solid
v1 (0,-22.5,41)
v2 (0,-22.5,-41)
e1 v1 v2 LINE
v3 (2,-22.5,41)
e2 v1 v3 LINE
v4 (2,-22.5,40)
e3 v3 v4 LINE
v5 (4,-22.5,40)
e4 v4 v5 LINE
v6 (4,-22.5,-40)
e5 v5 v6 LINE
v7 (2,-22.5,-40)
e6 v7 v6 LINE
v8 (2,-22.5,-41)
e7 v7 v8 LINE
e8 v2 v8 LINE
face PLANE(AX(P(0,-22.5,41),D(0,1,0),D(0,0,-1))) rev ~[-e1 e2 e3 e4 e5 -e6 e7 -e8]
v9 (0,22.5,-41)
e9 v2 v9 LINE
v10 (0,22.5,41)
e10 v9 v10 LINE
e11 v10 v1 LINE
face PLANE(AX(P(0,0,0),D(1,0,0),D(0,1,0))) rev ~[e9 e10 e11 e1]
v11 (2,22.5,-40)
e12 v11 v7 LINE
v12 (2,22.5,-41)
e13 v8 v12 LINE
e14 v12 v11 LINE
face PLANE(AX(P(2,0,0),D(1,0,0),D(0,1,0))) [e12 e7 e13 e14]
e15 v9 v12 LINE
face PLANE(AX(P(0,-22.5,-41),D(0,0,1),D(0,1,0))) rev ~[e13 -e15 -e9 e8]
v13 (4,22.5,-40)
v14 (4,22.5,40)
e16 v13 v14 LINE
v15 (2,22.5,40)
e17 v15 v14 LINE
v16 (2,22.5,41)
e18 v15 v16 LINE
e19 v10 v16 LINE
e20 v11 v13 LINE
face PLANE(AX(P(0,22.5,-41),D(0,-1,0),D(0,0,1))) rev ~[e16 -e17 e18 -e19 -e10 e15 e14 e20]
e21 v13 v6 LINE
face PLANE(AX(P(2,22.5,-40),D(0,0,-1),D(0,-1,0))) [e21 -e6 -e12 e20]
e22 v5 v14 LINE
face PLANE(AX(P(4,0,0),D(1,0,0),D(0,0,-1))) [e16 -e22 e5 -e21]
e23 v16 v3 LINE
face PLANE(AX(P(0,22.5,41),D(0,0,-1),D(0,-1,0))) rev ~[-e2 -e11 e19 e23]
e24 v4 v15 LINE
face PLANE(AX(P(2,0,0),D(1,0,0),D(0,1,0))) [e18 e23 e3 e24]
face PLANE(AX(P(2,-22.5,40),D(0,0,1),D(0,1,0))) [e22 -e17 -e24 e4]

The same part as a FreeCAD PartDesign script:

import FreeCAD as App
import Part
import Sketcher

doc = App.newDocument("Part")
body = doc.addObject("PartDesign::Body", "Body")

sketch1 = doc.addObject("Sketcher::SketchObject", "Sketch")
body.addObject(sketch1)
sketch1.AttachmentSupport = (doc.YZ_Plane, [""])
sketch1.MapMode = "FlatFace"
sketch1.addGeometry([
    Part.LineSegment(App.Vector(22.5, -41, 0), App.Vector(22.5, 41, 0)),
    Part.LineSegment(App.Vector(22.5, 41, 0), App.Vector(-22.5, 41, 0)),
    Part.LineSegment(App.Vector(-22.5, 41, 0), App.Vector(-22.5, -41, 0)),
    Part.LineSegment(App.Vector(-22.5, -41, 0), App.Vector(22.5, -41, 0)),
], False)
sketch1.addConstraint([
    Sketcher.Constraint("Coincident", 0, 2, 1, 1),
    Sketcher.Constraint("Coincident", 1, 2, 2, 1),
    Sketcher.Constraint("Coincident", 2, 2, 3, 1),
    Sketcher.Constraint("Coincident", 3, 2, 0, 1),
    Sketcher.Constraint("Vertical", 0),
    Sketcher.Constraint("Horizontal", 1),
    Sketcher.Constraint("Vertical", 2),
    Sketcher.Constraint("Horizontal", 3),
    Sketcher.Constraint("Symmetric", 0, 2, 2, 2, -1, 1),
    Sketcher.Constraint("DistanceX", 1, 2, 1, 1, 45.0),
    Sketcher.Constraint("DistanceY", 0, 1, 0, 2, 82.0),
])
pad1 = doc.addObject("PartDesign::Pad", "Pad")
body.addObject(pad1)
pad1.Profile = sketch1
pad1.Length = 2

sketch2 = doc.addObject("Sketcher::SketchObject", "Sketch001")
body.addObject(sketch2)
sketch2.AttachmentSupport = (doc.YZ_Plane, [""])
sketch2.MapMode = "FlatFace"
sketch2.AttachmentOffset = App.Placement(App.Vector(0, 0, 2), App.Rotation())
sketch2.addGeometry([
    Part.LineSegment(App.Vector(-22.5, -40, 0), App.Vector(22.5, -40, 0)),
    Part.LineSegment(App.Vector(22.5, -40, 0), App.Vector(22.5, 40, 0)),
    Part.LineSegment(App.Vector(22.5, 40, 0), App.Vector(-22.5, 40, 0)),
    Part.LineSegment(App.Vector(-22.5, 40, 0), App.Vector(-22.5, -40, 0)),
], False)
sketch2.addConstraint([
    Sketcher.Constraint("Coincident", 0, 2, 1, 1),
    Sketcher.Constraint("Coincident", 1, 2, 2, 1),
    Sketcher.Constraint("Coincident", 2, 2, 3, 1),
    Sketcher.Constraint("Coincident", 3, 2, 0, 1),
    Sketcher.Constraint("Horizontal", 0),
    Sketcher.Constraint("Vertical", 1),
    Sketcher.Constraint("Horizontal", 2),
    Sketcher.Constraint("Vertical", 3),
    Sketcher.Constraint("Symmetric", 0, 2, 2, 2, -1, 1),
    Sketcher.Constraint("DistanceX", 0, 1, 0, 2, 45.0),
    Sketcher.Constraint("DistanceY", 1, 1, 1, 2, 80.0),
])
pad2 = doc.addObject("PartDesign::Pad", "Pad001")
body.addObject(pad2)
pad2.Profile = sketch2
pad2.Length = 2

doc.recompute()
